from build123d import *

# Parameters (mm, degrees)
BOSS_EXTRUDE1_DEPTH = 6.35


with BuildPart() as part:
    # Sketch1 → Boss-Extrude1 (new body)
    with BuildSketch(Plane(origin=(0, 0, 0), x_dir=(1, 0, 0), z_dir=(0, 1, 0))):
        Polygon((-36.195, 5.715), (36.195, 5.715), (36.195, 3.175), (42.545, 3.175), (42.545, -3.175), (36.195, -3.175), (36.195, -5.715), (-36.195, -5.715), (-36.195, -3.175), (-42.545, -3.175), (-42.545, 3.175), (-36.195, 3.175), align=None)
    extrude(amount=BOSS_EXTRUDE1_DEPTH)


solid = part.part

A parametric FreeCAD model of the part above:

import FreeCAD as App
import Part
import Sketcher
Q = App.Units.Quantity

doc = App.newDocument("Part")
body = doc.addObject("PartDesign::Body", "Body")

sketch1 = body.newObject("Sketcher::SketchObject", "Sketch")
sketch1.AttachmentSupport = (doc.getObject("XZ_Plane"), [""])
sketch1.MapMode = "FlatFace"
sketch1.addGeometry([
    Part.LineSegment(App.Vector(36.2, -5.7, 0), App.Vector(-36.2, -5.7, 0)),
    Part.LineSegment(App.Vector(-36.2, -5.7, 0), App.Vector(-36.2, -3.2, 0)),
    Part.LineSegment(App.Vector(-36.2, -3.2, 0), App.Vector(-42.5, -3.2, 0)),
    Part.LineSegment(App.Vector(-42.5, -3.2, 0), App.Vector(-42.5, 3.2, 0)),
    Part.LineSegment(App.Vector(-42.5, 3.2, 0), App.Vector(-36.2, 3.2, 0)),
    Part.LineSegment(App.Vector(-36.2, 3.2, 0), App.Vector(-36.2, 5.7, 0)),
    Part.LineSegment(App.Vector(-36.2, 5.7, 0), App.Vector(36.2, 5.7, 0)),
    Part.LineSegment(App.Vector(36.2, 5.7, 0), App.Vector(36.2, 3.2, 0)),
    Part.LineSegment(App.Vector(36.2, 3.2, 0), App.Vector(42.5, 3.2, 0)),
    Part.LineSegment(App.Vector(42.5, 3.2, 0), App.Vector(42.5, -3.2, 0)),
    Part.LineSegment(App.Vector(42.5, -3.2, 0), App.Vector(36.2, -3.2, 0)),
    Part.LineSegment(App.Vector(36.2, -3.2, 0), App.Vector(36.2, -5.7, 0)),
], False)
sketch1.addConstraint([
    Sketcher.Constraint("Coincident", 0, 2, 1, 1),
    Sketcher.Constraint("Coincident", 1, 2, 2, 1),
    Sketcher.Constraint("Coincident", 2, 2, 3, 1),
    Sketcher.Constraint("Coincident", 3, 2, 4, 1),
    Sketcher.Constraint("Coincident", 4, 2, 5, 1),
    Sketcher.Constraint("Coincident", 5, 2, 6, 1),
    Sketcher.Constraint("Coincident", 6, 2, 7, 1),
    Sketcher.Constraint("Coincident", 7, 2, 8, 1),
    Sketcher.Constraint("Coincident", 8, 2, 9, 1),
    Sketcher.Constraint("Coincident", 9, 2, 10, 1),
    Sketcher.Constraint("Coincident", 10, 2, 11, 1),
    Sketcher.Constraint("Coincident", 11, 2, 0, 1),
    Sketcher.Constraint("Horizontal", 0),
    Sketcher.Constraint("Vertical", 1),
    Sketcher.Constraint("Horizontal", 2),
    Sketcher.Constraint("Vertical", 3),
    Sketcher.Constraint("Horizontal", 4),
    Sketcher.Constraint("Vertical", 5),
    Sketcher.Constraint("Horizontal", 6),
    Sketcher.Constraint("Vertical", 7),
    Sketcher.Constraint("Horizontal", 8),
    Sketcher.Constraint("Vertical", 9),
    Sketcher.Constraint("Horizontal", 10),
    Sketcher.Constraint("Vertical", 11),
    Sketcher.Constraint("Symmetric", 0, 2, 6, 2, -1, 1),
    Sketcher.Constraint("Symmetric", 2, 2, 8, 2, -1, 1),
    Sketcher.Constraint("Symmetric", 4, 2, 10, 2, -1, 1),
    Sketcher.Constraint("Symmetric", 4, 2, 7, 2, -2),
    Sketcher.Constraint("Equal", 10, 3),
    Sketcher.Constraint("DistanceY", 1, 1, 1, 2, Q("0.1 in")),
    Sketcher.Constraint("DistanceX", 0, 2, 0, 1, Q("2.85 in")),
    Sketcher.Constraint("DistanceX", 2, 2, 2, 1, Q("0.25 in")),
])
pad1 = body.newObject("PartDesign::Pad", "Pad")
pad1.Profile = sketch1
pad1.Length = Q("0.25 in")
pad1.Reversed = True

doc.recompute()
